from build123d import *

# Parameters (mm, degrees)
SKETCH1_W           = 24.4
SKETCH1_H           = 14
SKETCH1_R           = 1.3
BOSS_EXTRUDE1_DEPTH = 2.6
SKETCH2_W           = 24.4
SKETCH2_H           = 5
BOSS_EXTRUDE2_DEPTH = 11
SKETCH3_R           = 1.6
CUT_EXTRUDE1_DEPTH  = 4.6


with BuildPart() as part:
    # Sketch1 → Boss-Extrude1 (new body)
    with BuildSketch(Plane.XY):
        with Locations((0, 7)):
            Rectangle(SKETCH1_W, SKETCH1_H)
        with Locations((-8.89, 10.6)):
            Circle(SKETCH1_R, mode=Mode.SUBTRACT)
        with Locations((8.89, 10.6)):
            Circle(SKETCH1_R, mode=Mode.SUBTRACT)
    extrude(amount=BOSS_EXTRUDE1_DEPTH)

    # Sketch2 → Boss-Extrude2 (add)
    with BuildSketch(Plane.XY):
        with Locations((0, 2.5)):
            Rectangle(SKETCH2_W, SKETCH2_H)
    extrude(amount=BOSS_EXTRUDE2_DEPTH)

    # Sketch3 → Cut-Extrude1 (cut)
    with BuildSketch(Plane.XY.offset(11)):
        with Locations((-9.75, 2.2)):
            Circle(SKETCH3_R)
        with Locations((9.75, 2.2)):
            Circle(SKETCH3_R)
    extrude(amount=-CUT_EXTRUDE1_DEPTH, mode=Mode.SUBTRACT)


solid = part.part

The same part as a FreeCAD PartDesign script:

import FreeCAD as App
import Part
import Sketcher
from FreeCAD import Vector
Q = App.Units.Quantity

doc = App.newDocument("Part")
params = doc.addObject("Spreadsheet::Sheet", "Params")
for row, (alias, value) in enumerate([
    ("sketch1_diameter", "2.6 mm"),
    ("sketch1_height", "14 mm"),
    ("sketch1_width", "24.4 mm"),
    ("pad1_length", "2.6 mm"),
    ("sketch2_height", "5 mm"),
    ("sketch2_width", "24.4 mm"),
    ("pad2_length", "11 mm"),
    ("sketch3_diameter", "3.2 mm"),
    ("pocket1_length", "4.6 mm"),
], start=1):
    params.set(f"A{row}", alias)
    params.set(f"B{row}", "=" + value)
    params.setAlias(f"B{row}", alias)

body = doc.addObject("PartDesign::Body", "Body")

sketch1 = body.newObject("Sketcher::SketchObject", "Sketch")
sketch1.AttachmentSupport = (doc.getObject("XY_Plane"), [""])
sketch1.MapMode = "FlatFace"
sketch1.addGeometry([
    Part.LineSegment(Vector(-12.2, 14, 0), Vector(-12.2, 0, 0)),
    Part.LineSegment(Vector(-12.2, 0, 0), Vector(12.2, 0, 0)),
    Part.LineSegment(Vector(12.2, 0, 0), Vector(12.2, 14, 0)),
    Part.LineSegment(Vector(12.2, 14, 0), Vector(-12.2, 14, 0)),
    Part.Circle(Vector(-8.9, 10.6, 0), Vector(0, 0, 1), 1.3),
    Part.Circle(Vector(8.9, 10.6, 0), Vector(0, 0, 1), 1.3),
], False)
sketch1.addConstraint([
    Sketcher.Constraint("Coincident", 0, 2, 1, 1),
    Sketcher.Constraint("Coincident", 1, 2, 2, 1),
    Sketcher.Constraint("Coincident", 2, 2, 3, 1),
    Sketcher.Constraint("Coincident", 3, 2, 0, 1),
    Sketcher.Constraint("Vertical", 0),
    Sketcher.Constraint("Horizontal", 1),
    Sketcher.Constraint("Vertical", 2),
    Sketcher.Constraint("Horizontal", 3),
    Sketcher.Constraint("Equal", 4, 5),
    Sketcher.Constraint("Symmetric", 0, 2, 1, 2, -1, 1),
    Sketcher.Constraint("Symmetric", 4, 3, 5, 3, -2),
    Sketcher.Constraint("Diameter", 4, Q("2.6 mm")),
    Sketcher.Constraint("DistanceY", 0, 2, 0, 1, Q("14 mm")),
    Sketcher.Constraint("DistanceX", 1, 1, 1, 2, Q("24.4 mm")),
    Sketcher.Constraint("DistanceY", -1, 1, 4, 3, Q("10.6 mm")),
    Sketcher.Constraint("DistanceX", 4, 3, -1, 1, Q("8.89 mm")),
])
sketch1.setExpression("Constraints[11]", "Params.sketch1_diameter")
sketch1.setExpression("Constraints[12]", "Params.sketch1_height")
sketch1.setExpression("Constraints[13]", "Params.sketch1_width")
pad1 = body.newObject("PartDesign::Pad", "Pad")
pad1.Profile = sketch1
pad1.setExpression("Length", "Params.pad1_length")

sketch2 = body.newObject("Sketcher::SketchObject", "Sketch001")
sketch2.AttachmentSupport = (doc.getObject("XY_Plane"), [""])
sketch2.MapMode = "FlatFace"
sketch2.addGeometry([
    Part.LineSegment(Vector(-12, 5, 0), Vector(-12, 0, 0)),
    Part.LineSegment(Vector(-12, 0, 0), Vector(12, 0, 0)),
    Part.LineSegment(Vector(12, 0, 0), Vector(12, 5, 0)),
    Part.LineSegment(Vector(12, 5, 0), Vector(-12, 5, 0)),
], False)
sketch2.addConstraint([
    Sketcher.Constraint("Coincident", 0, 2, 1, 1),
    Sketcher.Constraint("Coincident", 1, 2, 2, 1),
    Sketcher.Constraint("Coincident", 2, 2, 3, 1),
    Sketcher.Constraint("Coincident", 3, 2, 0, 1),
    Sketcher.Constraint("Vertical", 0),
    Sketcher.Constraint("Horizontal", 1),
    Sketcher.Constraint("Vertical", 2),
    Sketcher.Constraint("Horizontal", 3),
    Sketcher.Constraint("Symmetric", 0, 2, 1, 2, -1, 1),
    Sketcher.Constraint("DistanceY", 0, 2, 0, 1, Q("5 mm")),
    Sketcher.Constraint("DistanceX", 1, 1, 1, 2, Q("24.4 mm")),
])
sketch2.setExpression("Constraints[9]", "Params.sketch2_height")
sketch2.setExpression("Constraints[10]", "Params.sketch2_width")
pad2 = body.newObject("PartDesign::Pad", "Pad001")
pad2.Profile = sketch2
pad2.setExpression("Length", "Params.pad2_length")

sketch3 = body.newObject("Sketcher::SketchObject", "Sketch002")
sketch3.AttachmentSupport = (doc.getObject("XY_Plane"), [""])
sketch3.MapMode = "FlatFace"
sketch3.AttachmentOffset = App.Placement(Vector(0, 0, 11), App.Rotation())
sketch3.addGeometry([
    Part.Circle(Vector(-9.8, 2.2, 0), Vector(0, 0, 1), 1.6),
    Part.Circle(Vector(9.8, 2.2, 0), Vector(0, 0, 1), 1.6),
], False)
sketch3.addConstraint([
    Sketcher.Constraint("Equal", 0, 1),
    Sketcher.Constraint("Symmetric", 0, 3, 1, 3, -2),
    Sketcher.Constraint("Diameter", 0, Q("3.2 mm")),
    Sketcher.Constraint("DistanceY", -1, 1, 0, 3, Q("2.2 mm")),
    Sketcher.Constraint("DistanceX", 0, 3, 1, 3, Q("19.5 mm")),
])
sketch3.setExpression("Constraints[2]", "Params.sketch3_diameter")
pocket1 = body.newObject("PartDesign::Pocket", "Pocket")
pocket1.Profile = sketch3
pocket1.setExpression("Length", "Params.pocket1_length")

doc.recompute()
